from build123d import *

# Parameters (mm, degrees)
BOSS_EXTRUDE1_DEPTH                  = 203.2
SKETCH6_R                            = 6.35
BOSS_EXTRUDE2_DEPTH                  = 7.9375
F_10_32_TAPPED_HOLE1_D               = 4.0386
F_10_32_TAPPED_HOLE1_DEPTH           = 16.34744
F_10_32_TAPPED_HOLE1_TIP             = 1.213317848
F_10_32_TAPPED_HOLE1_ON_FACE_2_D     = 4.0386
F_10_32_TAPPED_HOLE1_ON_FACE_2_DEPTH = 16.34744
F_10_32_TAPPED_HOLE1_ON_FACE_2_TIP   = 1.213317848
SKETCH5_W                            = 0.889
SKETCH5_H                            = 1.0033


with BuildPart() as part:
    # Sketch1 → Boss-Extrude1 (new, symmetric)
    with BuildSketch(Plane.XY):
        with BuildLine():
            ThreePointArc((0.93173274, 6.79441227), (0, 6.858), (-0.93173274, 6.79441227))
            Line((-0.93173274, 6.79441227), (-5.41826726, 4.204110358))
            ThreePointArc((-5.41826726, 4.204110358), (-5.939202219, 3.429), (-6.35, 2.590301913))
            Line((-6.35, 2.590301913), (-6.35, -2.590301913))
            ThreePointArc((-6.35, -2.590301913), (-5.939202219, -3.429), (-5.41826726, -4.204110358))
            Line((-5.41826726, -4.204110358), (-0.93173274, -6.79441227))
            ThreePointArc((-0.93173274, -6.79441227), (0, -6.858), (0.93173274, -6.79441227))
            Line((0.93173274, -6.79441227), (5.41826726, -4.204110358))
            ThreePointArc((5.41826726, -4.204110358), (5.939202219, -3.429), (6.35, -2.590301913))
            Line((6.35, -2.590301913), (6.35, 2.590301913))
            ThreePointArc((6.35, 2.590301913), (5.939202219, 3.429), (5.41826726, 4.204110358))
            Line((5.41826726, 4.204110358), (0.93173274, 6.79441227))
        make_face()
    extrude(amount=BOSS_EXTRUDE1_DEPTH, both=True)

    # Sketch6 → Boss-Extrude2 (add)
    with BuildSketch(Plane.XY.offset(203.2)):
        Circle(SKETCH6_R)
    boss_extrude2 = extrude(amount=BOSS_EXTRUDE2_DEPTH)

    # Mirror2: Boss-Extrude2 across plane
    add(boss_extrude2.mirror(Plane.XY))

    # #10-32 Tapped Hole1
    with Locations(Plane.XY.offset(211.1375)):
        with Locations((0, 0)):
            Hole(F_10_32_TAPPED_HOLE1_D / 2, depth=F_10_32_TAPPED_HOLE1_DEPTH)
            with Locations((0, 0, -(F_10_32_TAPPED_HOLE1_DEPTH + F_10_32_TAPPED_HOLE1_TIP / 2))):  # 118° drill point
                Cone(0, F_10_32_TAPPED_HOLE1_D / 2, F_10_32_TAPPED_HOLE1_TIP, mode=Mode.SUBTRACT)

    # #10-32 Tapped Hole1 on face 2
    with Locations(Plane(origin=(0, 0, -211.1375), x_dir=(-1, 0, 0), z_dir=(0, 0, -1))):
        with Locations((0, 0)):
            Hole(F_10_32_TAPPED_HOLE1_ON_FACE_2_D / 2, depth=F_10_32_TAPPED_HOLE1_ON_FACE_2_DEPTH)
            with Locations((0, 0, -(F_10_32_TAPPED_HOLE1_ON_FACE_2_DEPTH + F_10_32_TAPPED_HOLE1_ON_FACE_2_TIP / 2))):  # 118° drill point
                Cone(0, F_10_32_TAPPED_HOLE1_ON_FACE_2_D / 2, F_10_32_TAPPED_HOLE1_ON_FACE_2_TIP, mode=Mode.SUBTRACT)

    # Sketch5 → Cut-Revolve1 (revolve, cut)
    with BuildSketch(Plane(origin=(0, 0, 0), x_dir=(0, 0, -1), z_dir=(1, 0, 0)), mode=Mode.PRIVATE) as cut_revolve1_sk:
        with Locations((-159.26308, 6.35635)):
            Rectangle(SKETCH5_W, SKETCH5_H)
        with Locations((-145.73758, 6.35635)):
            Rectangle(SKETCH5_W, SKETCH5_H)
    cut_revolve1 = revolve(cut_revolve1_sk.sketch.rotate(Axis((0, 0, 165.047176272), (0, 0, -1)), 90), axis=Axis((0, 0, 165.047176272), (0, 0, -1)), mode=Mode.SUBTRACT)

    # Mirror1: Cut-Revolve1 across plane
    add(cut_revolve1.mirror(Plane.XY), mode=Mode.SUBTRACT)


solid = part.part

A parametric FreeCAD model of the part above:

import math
import FreeCAD as App
import Part
import Sketcher
from FreeCAD import Vector
Q = App.Units.Quantity

doc = App.newDocument("Part")
body = doc.addObject("PartDesign::Body", "Body")

sketch1 = body.newObject("Sketcher::SketchObject", "Sketch")
sketch1.AttachmentSupport = (doc.getObject("XY_Plane"), [""])
sketch1.MapMode = "FlatFace"
sketch1.addGeometry([
    Part.ArcOfCircle(Part.Circle(Vector(0, 0, 0), Vector(0, 0, 1), 6.858), math.radians(82.191607), math.radians(97.808393)),
    Part.LineSegment(Vector(-0.931733, 6.794412, 0), Vector(-5.418267, 4.20411, 0)),
    Part.ArcOfCircle(Part.Circle(Vector(0, 0, 0), Vector(0, 0, 1), 6.858), math.radians(142.191607), math.radians(157.808393)),
    Part.LineSegment(Vector(-6.35, 2.590302, 0), Vector(-6.35, -2.590302, 0)),
    Part.ArcOfCircle(Part.Circle(Vector(0, 0, 0), Vector(0, 0, 1), 6.858), math.radians(-157.808393), math.radians(-142.191607)),
    Part.LineSegment(Vector(-5.418267, -4.20411, 0), Vector(-0.931733, -6.794412, 0)),
    Part.ArcOfCircle(Part.Circle(Vector(0, 0, 0), Vector(0, 0, 1), 6.858), math.radians(-97.808393), math.radians(-82.191607)),
    Part.LineSegment(Vector(0.931733, -6.794412, 0), Vector(5.418267, -4.20411, 0)),
    Part.ArcOfCircle(Part.Circle(Vector(0, 0, 0), Vector(0, 0, 1), 6.858), math.radians(-37.808393), math.radians(-22.191607)),
    Part.LineSegment(Vector(6.35, -2.590302, 0), Vector(6.35, 2.590302, 0)),
    Part.ArcOfCircle(Part.Circle(Vector(0, 0, 0), Vector(0, 0, 1), 6.858), math.radians(22.191607), math.radians(37.808393)),
    Part.LineSegment(Vector(5.418267, 4.20411, 0), Vector(0.931733, 6.794412, 0)),
], False)
sketch1.addConstraint([
    Sketcher.Constraint("Coincident", 0, 2, 1, 1),
    Sketcher.Constraint("Coincident", 1, 2, 2, 1),
    Sketcher.Constraint("Coincident", 2, 2, 3, 1),
    Sketcher.Constraint("Coincident", 3, 2, 4, 1),
    Sketcher.Constraint("Coincident", 4, 2, 5, 1),
    Sketcher.Constraint("Coincident", 5, 2, 6, 1),
    Sketcher.Constraint("Coincident", 6, 2, 7, 1),
    Sketcher.Constraint("Coincident", 7, 2, 8, 1),
    Sketcher.Constraint("Coincident", 8, 2, 9, 1),
    Sketcher.Constraint("Coincident", 9, 2, 10, 1),
    Sketcher.Constraint("Coincident", 10, 2, 11, 1),
    Sketcher.Constraint("Coincident", 11, 2, 0, 1),
    Sketcher.Constraint("Vertical", 3),
    Sketcher.Constraint("Vertical", 9),
    Sketcher.Constraint("Coincident", 0, 3, -1, 1),
    Sketcher.Constraint("Coincident", 2, 3, -1, 1),
    Sketcher.Constraint("Coincident", 4, 3, -1, 1),
    Sketcher.Constraint("Coincident", 6, 3, -1, 1),
    Sketcher.Constraint("Coincident", 8, 3, -1, 1),
    Sketcher.Constraint("Coincident", 10, 3, -1, 1),
    Sketcher.Constraint("Equal", 0, 2),
    Sketcher.Constraint("Equal", 2, 4),
    Sketcher.Constraint("Equal", 4, 6),
    Sketcher.Constraint("Equal", 6, 8),
    Sketcher.Constraint("Equal", 8, 10),
    Sketcher.Constraint("Parallel", 1, 7),
    Sketcher.Constraint("Parallel", 5, 11),
    Sketcher.Constraint("Horizontal", 5, 2, 6, 2),
    Sketcher.Constraint("Horizontal", 4, 2, 7, 2),
    Sketcher.Constraint("Horizontal", 3, 2, 8, 2),
    Sketcher.Constraint("Horizontal", 1, 2, 10, 2),
    Sketcher.Constraint("Vertical", 1, 2, 4, 2),
    Sketcher.Constraint("Radius", 0, Q("0.27 in")),
    Sketcher.Constraint("Angle", 1, Q("-150 deg")),
    Sketcher.Constraint("DistanceX", 2, 2, -1, 1, Q("0.25 in")),
    Sketcher.Constraint("DistanceX", 4, 2, 6, 2, Q("0.25 in")),
])
pad1 = body.newObject("PartDesign::Pad", "Pad")
pad1.Profile = sketch1
pad1.Length = Q("16 in")
pad1.Midplane = True

sketch2 = body.newObject("Sketcher::SketchObject", "Sketch001")
sketch2.AttachmentSupport = (doc.getObject("XY_Plane"), [""])
sketch2.MapMode = "FlatFace"
sketch2.AttachmentOffset = App.Placement(Vector(0, 0, 8 * 25.4), App.Rotation())
sketch2.addGeometry(Part.Circle(Vector(0, 0, 0), Vector(0, 0, 1), 6.35), False)
sketch2.addConstraint([
    Sketcher.Constraint("Coincident", 0, 3, -1, 1),
    Sketcher.Constraint("Diameter", 0, Q("0.5 in")),
])
pad2 = body.newObject("PartDesign::Pad", "Pad001")
pad2.Profile = sketch2
pad2.Length = Q("0.3125 in")
doc.recompute()

mirrored = body.newObject("PartDesign::Mirrored", "Mirrored")
mirrored.Originals = [pad2]
mirrored.MirrorPlane = (doc.getObject("XY_Plane"), [""])
body.Tip = mirrored

sketch3 = body.newObject("Sketcher::SketchObject", "Sketch002")
sketch3.AttachmentSupport = (doc.getObject("XY_Plane"), [""])
sketch3.MapMode = "FlatFace"
sketch3.AttachmentOffset = App.Placement(Vector(0, 0, 8.3125 * 25.4), App.Rotation())
sketch3.addGeometry(Part.Circle(Vector(0, 0, 0), Vector(0, 0, 1), 2.0193), False)
sketch3.addConstraint([
    Sketcher.Constraint("Coincident", 0, 3, -1, 1),
    Sketcher.Constraint("Diameter", 0, Q("0.159 in")),
])
doc.recompute()
hole = body.newObject("PartDesign::Hole", "Hole")
hole.Profile = sketch3
hole.ThreadType = "None"
hole.Diameter = Q("0.159 in")
hole.DepthType = "Dimension"
hole.Depth = Q("0.6436 in")
hole.DrillPoint = "Angled"
hole.DrillPointAngle = 118

sketch4 = body.newObject("Sketcher::SketchObject", "Sketch003")
sketch4.AttachmentSupport = (doc.getObject("XY_Plane"), [""])
sketch4.MapMode = "FlatFace"
sketch4.AttachmentOffset = App.Placement(Vector(0, 0, -8.3125 * 25.4), App.Rotation())
sketch4.addGeometry(Part.Circle(Vector(0, 0, 0), Vector(0, 0, 1), 2.0193), False)
sketch4.addConstraint([
    Sketcher.Constraint("Coincident", 0, 3, -1, 1),
    Sketcher.Constraint("Diameter", 0, Q("0.159 in")),
])
doc.recompute()
hole2 = body.newObject("PartDesign::Hole", "Hole001")
hole2.Profile = sketch4
hole2.ThreadType = "None"
hole2.Diameter = Q("0.159 in")
hole2.DepthType = "Dimension"
hole2.Depth = Q("0.6436 in")
hole2.DrillPoint = "Angled"
hole2.DrillPointAngle = 118
hole2.Reversed = True

sketch5 = body.newObject("Sketcher::SketchObject", "Sketch004")
sketch5.AttachmentSupport = (doc.getObject("YZ_Plane"), [""])
sketch5.MapMode = "FlatFace"
sketch5.addGeometry([
    Part.LineSegment(Vector(6.858, 159.70758, 0), Vector(5.8547, 159.70758, 0)),
    Part.LineSegment(Vector(5.8547, 159.70758, 0), Vector(5.8547, 158.81858, 0)),
    Part.LineSegment(Vector(5.8547, 158.81858, 0), Vector(6.858, 158.81858, 0)),
    Part.LineSegment(Vector(6.858, 158.81858, 0), Vector(6.858, 159.70758, 0)),
    Part.LineSegment(Vector(6.858, 146.18208, 0), Vector(5.8547, 146.18208, 0)),
    Part.LineSegment(Vector(5.8547, 146.18208, 0), Vector(5.8547, 145.29308, 0)),
    Part.LineSegment(Vector(5.8547, 145.29308, 0), Vector(6.858, 145.29308, 0)),
    Part.LineSegment(Vector(6.858, 145.29308, 0), Vector(6.858, 146.18208, 0)),
], False)
sketch5.addConstraint([
    Sketcher.Constraint("Coincident", 0, 2, 1, 1),
    Sketcher.Constraint("Coincident", 1, 2, 2, 1),
    Sketcher.Constraint("Coincident", 2, 2, 3, 1),
    Sketcher.Constraint("Coincident", 3, 2, 0, 1),
    Sketcher.Constraint("Coincident", 4, 2, 5, 1),
    Sketcher.Constraint("Coincident", 5, 2, 6, 1),
    Sketcher.Constraint("Coincident", 6, 2, 7, 1),
    Sketcher.Constraint("Coincident", 7, 2, 4, 1),
    Sketcher.Constraint("Horizontal", 0),
    Sketcher.Constraint("Vertical", 1),
    Sketcher.Constraint("Horizontal", 2),
    Sketcher.Constraint("Vertical", 3),
    Sketcher.Constraint("Horizontal", 4),
    Sketcher.Constraint("Vertical", 5),
    Sketcher.Constraint("Horizontal", 6),
    Sketcher.Constraint("Vertical", 7),
    Sketcher.Constraint("Vertical", 1, 2, 4, 2),
    Sketcher.Constraint("Vertical", 3, 2, 6, 2),
    Sketcher.Constraint("Equal", 3, 5),
    Sketcher.Constraint("DistanceY", 1, 2, 1, 1, Q("0.035 in")),
    Sketcher.Constraint("DistanceX", -1, 1, 2, 2, Q("0.27 in")),
    Sketcher.Constraint("DistanceX", 0, 2, 0, 1, Q("0.0395 in")),
    Sketcher.Constraint("DistanceY", -1, 1, 0, 2, Q("6.2877 in")),
    Sketcher.Constraint("DistanceY", -1, 1, 4, 2, Q("5.7552 in")),
])
groove = body.newObject("PartDesign::Groove", "Groove")
groove.Profile = sketch5
groove.ReferenceAxis = (sketch5, ["V_Axis"])
groove.Angle = 360
doc.recompute()

mirrored2 = body.newObject("PartDesign::Mirrored", "Mirrored001")
mirrored2.Originals = [groove]
mirrored2.MirrorPlane = (doc.getObject("XY_Plane"), [""])
body.Tip = mirrored2

doc.recompute()
